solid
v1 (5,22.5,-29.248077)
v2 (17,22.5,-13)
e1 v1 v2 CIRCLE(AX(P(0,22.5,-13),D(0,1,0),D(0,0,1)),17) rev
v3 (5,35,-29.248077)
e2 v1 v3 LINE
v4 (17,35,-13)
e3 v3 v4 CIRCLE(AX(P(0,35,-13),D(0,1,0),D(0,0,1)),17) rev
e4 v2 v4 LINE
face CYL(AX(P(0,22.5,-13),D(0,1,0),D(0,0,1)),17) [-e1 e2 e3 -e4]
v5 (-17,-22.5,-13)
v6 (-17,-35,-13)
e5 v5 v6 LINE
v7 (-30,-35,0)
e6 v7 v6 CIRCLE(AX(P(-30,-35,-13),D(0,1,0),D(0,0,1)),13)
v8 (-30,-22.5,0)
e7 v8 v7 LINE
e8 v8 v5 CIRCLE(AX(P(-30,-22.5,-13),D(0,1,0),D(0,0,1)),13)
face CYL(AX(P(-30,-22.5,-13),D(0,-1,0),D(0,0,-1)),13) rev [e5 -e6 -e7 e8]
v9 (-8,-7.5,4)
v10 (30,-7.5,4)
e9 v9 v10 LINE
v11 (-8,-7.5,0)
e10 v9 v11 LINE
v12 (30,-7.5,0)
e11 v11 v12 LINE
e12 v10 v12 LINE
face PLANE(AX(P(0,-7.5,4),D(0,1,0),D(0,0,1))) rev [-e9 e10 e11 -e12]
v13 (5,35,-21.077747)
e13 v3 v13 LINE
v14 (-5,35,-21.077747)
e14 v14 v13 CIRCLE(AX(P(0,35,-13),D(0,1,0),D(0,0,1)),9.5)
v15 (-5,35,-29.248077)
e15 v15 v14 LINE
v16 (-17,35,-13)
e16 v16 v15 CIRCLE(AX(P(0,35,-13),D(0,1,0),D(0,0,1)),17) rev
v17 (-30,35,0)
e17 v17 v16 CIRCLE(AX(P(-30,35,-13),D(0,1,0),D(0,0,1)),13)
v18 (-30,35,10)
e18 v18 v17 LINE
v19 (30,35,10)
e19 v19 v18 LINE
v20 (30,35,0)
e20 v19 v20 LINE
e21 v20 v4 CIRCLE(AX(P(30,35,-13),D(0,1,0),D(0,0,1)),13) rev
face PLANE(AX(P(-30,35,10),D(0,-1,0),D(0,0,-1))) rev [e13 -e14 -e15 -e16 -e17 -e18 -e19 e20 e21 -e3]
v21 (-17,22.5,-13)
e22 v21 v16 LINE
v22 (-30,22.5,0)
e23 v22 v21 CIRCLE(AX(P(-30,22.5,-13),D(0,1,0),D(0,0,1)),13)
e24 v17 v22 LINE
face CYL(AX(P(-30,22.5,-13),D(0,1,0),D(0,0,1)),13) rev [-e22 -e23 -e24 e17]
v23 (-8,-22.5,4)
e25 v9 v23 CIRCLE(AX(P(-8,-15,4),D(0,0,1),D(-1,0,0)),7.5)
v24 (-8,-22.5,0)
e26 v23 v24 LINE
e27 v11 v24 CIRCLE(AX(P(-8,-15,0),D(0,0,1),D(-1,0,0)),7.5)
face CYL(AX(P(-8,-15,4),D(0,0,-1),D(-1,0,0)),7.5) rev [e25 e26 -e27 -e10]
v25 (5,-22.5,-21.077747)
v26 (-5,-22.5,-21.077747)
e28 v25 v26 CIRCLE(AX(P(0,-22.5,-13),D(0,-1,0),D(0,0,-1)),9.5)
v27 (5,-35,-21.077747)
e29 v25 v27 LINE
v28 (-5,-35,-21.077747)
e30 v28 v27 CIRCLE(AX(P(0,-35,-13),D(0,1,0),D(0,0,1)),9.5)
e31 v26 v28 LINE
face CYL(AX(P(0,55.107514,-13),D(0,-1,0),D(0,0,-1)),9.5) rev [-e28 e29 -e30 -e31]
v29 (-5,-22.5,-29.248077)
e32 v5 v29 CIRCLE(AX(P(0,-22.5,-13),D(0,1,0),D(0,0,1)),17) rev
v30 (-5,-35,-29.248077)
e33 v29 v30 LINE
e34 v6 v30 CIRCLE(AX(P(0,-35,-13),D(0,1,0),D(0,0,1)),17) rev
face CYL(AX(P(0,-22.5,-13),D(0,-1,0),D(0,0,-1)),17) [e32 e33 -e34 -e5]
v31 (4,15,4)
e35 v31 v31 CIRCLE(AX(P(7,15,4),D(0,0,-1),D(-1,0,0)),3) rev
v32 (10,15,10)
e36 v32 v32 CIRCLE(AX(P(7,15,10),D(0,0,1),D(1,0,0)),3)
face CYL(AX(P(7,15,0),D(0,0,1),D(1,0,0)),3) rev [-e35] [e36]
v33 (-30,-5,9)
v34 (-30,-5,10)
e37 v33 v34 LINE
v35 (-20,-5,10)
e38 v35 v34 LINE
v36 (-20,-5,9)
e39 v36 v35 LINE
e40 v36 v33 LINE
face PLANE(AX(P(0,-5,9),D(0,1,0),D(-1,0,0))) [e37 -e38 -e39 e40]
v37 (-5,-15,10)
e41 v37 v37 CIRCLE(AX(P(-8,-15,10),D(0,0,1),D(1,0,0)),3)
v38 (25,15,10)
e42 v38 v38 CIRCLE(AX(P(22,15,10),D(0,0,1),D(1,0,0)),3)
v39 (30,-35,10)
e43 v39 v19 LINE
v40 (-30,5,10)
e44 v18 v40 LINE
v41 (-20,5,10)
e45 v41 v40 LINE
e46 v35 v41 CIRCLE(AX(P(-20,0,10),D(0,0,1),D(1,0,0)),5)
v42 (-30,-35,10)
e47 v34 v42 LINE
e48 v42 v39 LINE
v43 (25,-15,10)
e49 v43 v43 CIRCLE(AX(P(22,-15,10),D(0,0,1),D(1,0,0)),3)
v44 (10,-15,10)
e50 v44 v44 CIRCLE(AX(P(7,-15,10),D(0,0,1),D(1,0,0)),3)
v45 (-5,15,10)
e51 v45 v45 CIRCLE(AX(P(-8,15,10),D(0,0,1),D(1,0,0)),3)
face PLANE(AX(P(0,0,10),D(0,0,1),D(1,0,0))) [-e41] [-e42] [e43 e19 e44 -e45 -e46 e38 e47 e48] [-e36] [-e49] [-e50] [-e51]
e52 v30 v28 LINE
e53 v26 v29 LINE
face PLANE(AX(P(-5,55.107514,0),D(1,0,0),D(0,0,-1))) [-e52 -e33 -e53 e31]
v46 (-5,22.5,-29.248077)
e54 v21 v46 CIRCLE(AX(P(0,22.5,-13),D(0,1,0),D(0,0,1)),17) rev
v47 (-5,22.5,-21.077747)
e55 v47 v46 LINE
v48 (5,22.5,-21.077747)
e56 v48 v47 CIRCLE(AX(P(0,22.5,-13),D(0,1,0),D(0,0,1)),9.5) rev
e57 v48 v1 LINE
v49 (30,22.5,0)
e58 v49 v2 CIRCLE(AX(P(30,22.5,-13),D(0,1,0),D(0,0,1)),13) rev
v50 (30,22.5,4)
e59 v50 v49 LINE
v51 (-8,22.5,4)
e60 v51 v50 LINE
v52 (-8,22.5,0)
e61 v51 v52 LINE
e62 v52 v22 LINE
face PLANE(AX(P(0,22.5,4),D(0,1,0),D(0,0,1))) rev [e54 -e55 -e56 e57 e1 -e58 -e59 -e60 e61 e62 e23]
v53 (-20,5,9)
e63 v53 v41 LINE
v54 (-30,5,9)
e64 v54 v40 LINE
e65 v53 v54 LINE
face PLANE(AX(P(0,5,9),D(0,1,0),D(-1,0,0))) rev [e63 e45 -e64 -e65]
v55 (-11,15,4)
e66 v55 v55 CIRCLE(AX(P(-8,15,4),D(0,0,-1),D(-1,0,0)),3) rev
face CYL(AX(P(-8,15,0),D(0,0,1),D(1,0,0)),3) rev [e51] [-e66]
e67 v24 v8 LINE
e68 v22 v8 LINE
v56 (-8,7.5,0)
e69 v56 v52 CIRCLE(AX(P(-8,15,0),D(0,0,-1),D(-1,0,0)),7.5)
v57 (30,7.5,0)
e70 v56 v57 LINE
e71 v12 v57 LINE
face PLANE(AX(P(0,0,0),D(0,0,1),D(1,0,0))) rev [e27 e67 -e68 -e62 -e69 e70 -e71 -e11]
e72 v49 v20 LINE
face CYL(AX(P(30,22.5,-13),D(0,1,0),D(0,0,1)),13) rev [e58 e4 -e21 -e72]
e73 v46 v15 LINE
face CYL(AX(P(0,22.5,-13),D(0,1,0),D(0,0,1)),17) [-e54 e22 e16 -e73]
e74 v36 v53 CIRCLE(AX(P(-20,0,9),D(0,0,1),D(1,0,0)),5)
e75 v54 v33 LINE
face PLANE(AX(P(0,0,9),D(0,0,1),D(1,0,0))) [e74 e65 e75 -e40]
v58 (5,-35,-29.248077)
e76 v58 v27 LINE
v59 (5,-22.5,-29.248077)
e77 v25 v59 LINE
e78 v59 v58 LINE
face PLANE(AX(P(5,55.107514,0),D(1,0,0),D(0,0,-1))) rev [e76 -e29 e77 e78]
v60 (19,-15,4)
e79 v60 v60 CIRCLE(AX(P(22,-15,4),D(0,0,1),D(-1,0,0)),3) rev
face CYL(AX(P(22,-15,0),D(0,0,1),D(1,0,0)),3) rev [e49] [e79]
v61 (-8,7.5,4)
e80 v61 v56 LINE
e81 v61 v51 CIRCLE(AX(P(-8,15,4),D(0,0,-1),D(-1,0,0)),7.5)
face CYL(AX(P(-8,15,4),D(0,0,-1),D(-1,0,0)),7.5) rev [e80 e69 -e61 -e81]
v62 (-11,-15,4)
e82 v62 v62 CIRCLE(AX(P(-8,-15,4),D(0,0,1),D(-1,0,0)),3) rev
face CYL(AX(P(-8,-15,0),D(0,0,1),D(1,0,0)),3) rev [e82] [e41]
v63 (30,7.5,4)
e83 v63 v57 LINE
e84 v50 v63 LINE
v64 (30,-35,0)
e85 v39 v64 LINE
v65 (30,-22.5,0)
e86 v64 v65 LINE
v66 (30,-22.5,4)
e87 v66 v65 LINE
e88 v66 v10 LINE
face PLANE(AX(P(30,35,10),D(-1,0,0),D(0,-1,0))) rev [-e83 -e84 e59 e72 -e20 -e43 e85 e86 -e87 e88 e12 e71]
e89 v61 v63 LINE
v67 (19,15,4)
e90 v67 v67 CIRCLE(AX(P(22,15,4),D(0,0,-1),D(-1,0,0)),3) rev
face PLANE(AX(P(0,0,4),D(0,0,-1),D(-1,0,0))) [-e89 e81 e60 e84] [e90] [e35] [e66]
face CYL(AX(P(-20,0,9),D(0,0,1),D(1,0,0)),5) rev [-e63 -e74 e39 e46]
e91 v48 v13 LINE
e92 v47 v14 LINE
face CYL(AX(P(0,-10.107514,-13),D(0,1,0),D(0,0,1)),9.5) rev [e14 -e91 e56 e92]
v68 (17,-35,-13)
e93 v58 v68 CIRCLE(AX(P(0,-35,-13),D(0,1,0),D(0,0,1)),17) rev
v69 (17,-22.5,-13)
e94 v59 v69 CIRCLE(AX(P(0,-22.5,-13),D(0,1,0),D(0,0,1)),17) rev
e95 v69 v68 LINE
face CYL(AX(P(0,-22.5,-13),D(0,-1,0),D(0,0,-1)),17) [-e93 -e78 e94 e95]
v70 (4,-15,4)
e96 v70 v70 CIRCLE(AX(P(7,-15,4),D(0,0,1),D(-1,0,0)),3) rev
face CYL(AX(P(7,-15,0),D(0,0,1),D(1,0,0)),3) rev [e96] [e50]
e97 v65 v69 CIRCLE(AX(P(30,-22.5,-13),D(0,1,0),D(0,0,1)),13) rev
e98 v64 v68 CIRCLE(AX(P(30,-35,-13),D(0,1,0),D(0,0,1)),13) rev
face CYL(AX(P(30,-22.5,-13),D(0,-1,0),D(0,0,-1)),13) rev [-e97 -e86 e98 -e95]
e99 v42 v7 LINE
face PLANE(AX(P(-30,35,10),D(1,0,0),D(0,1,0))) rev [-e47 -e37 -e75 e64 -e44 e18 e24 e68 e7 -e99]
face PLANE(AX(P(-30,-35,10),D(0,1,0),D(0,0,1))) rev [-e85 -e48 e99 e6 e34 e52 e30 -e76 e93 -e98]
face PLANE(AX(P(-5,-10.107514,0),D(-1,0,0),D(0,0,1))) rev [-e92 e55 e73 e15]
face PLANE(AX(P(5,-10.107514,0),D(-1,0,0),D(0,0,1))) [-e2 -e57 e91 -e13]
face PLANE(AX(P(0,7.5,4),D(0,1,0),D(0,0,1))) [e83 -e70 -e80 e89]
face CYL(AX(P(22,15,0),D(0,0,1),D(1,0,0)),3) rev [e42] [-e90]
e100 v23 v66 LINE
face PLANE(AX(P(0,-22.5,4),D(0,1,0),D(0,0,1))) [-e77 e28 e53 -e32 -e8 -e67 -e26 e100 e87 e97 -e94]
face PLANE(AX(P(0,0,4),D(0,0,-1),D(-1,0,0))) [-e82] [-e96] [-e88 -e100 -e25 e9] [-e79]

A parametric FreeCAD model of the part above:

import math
import FreeCAD as App
import Part
import Sketcher

V = App.Vector


def add_polygon(sketch, points):
    """Adds a closed chain of lines whose ends are joined by coincident constraints."""
    first, n = sketch.GeometryCount, len(points)
    for a, b in zip(points, points[1:] + points[:1]):
        sketch.addGeometry(Part.LineSegment(App.Vector(*a, 0), App.Vector(*b, 0)), False)
    for i in range(n):
        sketch.addConstraint(Sketcher.Constraint("Coincident", first + i, 2, first + (i + 1) % n, 1))

doc = App.newDocument("Part")
body = doc.addObject("PartDesign::Body", "Body")

sketch1 = body.newObject("Sketcher::SketchObject", "Sketch")
sketch1.AttachmentSupport = (doc.getObject("XY_Plane"), [""])
sketch1.MapMode = "FlatFace"
add_polygon(sketch1, [(-30, 35), (-30, -35), (30, -35), (30, 35)])
sketch1.addConstraint([
    Sketcher.Constraint("Vertical", 0),
    Sketcher.Constraint("Horizontal", 1),
    Sketcher.Constraint("Vertical", 2),
    Sketcher.Constraint("Horizontal", 3),
    Sketcher.Constraint("Symmetric", 0, 2, 2, 2, -1, 1),
    Sketcher.Constraint("DistanceX", 1, 1, 1, 2, 60.0),
    Sketcher.Constraint("DistanceY", 0, 2, 0, 1, 70.0),
])
pad1 = body.newObject("PartDesign::Pad", "Pad")
pad1.Profile = sketch1
pad1.Length = 10

sketch2 = body.newObject("Sketcher::SketchObject", "Sketch001")
sketch2.AttachmentSupport = (doc.getObject("XY_Plane"), [""])
sketch2.MapMode = "FlatFace"
sketch2.AttachmentOffset = App.Placement(V(0, 0, 10), App.Rotation())
sketch2.addGeometry([
    Part.Circle(V(-8, 15, 0), V(0, 0, 1), 3),
    Part.Circle(V(7, 15, 0), V(0, 0, 1), 3),
    Part.Circle(V(-8, -15, 0), V(0, 0, 1), 3),
    Part.Circle(V(7, -15, 0), V(0, 0, 1), 3),
    Part.Circle(V(22, 15, 0), V(0, 0, 1), 3),
    Part.Circle(V(22, -15, 0), V(0, 0, 1), 3),
], False)
sketch2.addConstraint([
    Sketcher.Constraint("Equal", 0, 1),
    Sketcher.Constraint("Equal", 1, 2),
    Sketcher.Constraint("Equal", 2, 3),
    Sketcher.Constraint("Equal", 3, 4),
    Sketcher.Constraint("Equal", 4, 5),
    Sketcher.Constraint("Symmetric", 0, 3, 2, 3, -1),
    Sketcher.Constraint("Symmetric", 1, 3, 3, 3, -1),
    Sketcher.Constraint("Symmetric", 4, 3, 5, 3, -1),
    Sketcher.Constraint("Horizontal", 0, 3, 1, 3),
    Sketcher.Constraint("Horizontal", 1, 3, 4, 3),
    Sketcher.Constraint("Diameter", 0, 6.0),
    Sketcher.Constraint("DistanceX", 0, 3, -1, 1, 8.0),
    Sketcher.Constraint("DistanceY", -1, 1, 0, 3, 15.0),
    Sketcher.Constraint("DistanceX", -1, 1, 1, 3, 7.0),
    Sketcher.Constraint("DistanceX", -1, 1, 4, 3, 22.0),
])
pocket1 = body.newObject("PartDesign::Pocket", "Pocket")
pocket1.Profile = sketch2
pocket1.Type = "ThroughAll"

sketch3 = body.newObject("Sketcher::SketchObject", "Sketch002")
sketch3.AttachmentSupport = (doc.getObject("XY_Plane"), [""])
sketch3.MapMode = "FlatFace"
sketch3.AttachmentOffset = App.Placement(V(0, 0, 4), App.Rotation())
sketch3.addGeometry([
    Part.LineSegment(V(-8, 22.5, 0), V(30, 22.5, 0)),
    Part.LineSegment(V(30, 22.5, 0), V(30, 7.5, 0)),
    Part.LineSegment(V(30, 7.5, 0), V(-8, 7.5, 0)),
    Part.ArcOfCircle(Part.Circle(V(-8, 15, 0), V(0, 0, 1), 7.5), math.radians(90), math.radians(270)),
    Part.Circle(V(-8, 15, 0), V(0, 0, 1), 3),
    Part.Circle(V(7, 15, 0), V(0, 0, 1), 3),
], False)
sketch3.addConstraint([
    Sketcher.Constraint("Coincident", 0, 2, 1, 1),
    Sketcher.Constraint("Coincident", 1, 2, 2, 1),
    Sketcher.Constraint("Tangent", 2, 2, 3, 2),
    Sketcher.Constraint("Tangent", 3, 1, 0, 1),
    Sketcher.Constraint("Horizontal", 0),
    Sketcher.Constraint("Vertical", 1),
    Sketcher.Constraint("Horizontal", 2),
    Sketcher.Constraint("Coincident", 4, 3, 3, 3),
    Sketcher.Constraint("Equal", 4, 5),
    Sketcher.Constraint("Horizontal", 4, 3, 5, 3),
    Sketcher.Constraint("Diameter", 4, 6.0),
    Sketcher.Constraint("Radius", 3, 7.5),
    Sketcher.Constraint("DistanceX", 0, 1, 0, 2, 38.0),
    Sketcher.Constraint("DistanceX", 3, 3, -1, 1, 8.0),
    Sketcher.Constraint("DistanceY", -1, 1, 3, 3, 15.0),
    Sketcher.Constraint("DistanceX", -1, 1, 5, 3, 7.0),
])
pocket2 = body.newObject("PartDesign::Pocket", "Pocket001")
pocket2.Profile = sketch3
pocket2.Length = 4
doc.recompute()

mirrored = body.newObject("PartDesign::Mirrored", "Mirrored")
mirrored.Originals = [pocket2]
mirrored.MirrorPlane = (doc.getObject("XZ_Plane"), [""])
body.Tip = mirrored

sketch4 = body.newObject("Sketcher::SketchObject", "Sketch003")
sketch4.AttachmentSupport = (doc.getObject("XY_Plane"), [""])
sketch4.MapMode = "FlatFace"
sketch4.AttachmentOffset = App.Placement(V(0, 0, 10), App.Rotation())
sketch4.addGeometry([
    Part.LineSegment(V(-20, 5, 0), V(-30, 5, 0)),
    Part.LineSegment(V(-30, 5, 0), V(-30, -5, 0)),
    Part.LineSegment(V(-30, -5, 0), V(-20, -5, 0)),
    Part.ArcOfCircle(Part.Circle(V(-20, 0, 0), V(0, 0, 1), 5), math.radians(-90), math.radians(90)),
], False)
sketch4.addConstraint([
    Sketcher.Constraint("Coincident", 0, 2, 1, 1),
    Sketcher.Constraint("Coincident", 1, 2, 2, 1),
    Sketcher.Constraint("Tangent", 2, 2, 3, 1),
    Sketcher.Constraint("Tangent", 3, 2, 0, 1),
    Sketcher.Constraint("Horizontal", 0),
    Sketcher.Constraint("Vertical", 1),
    Sketcher.Constraint("Horizontal", 2),
    Sketcher.Constraint("PointOnObject", 3, 3, -1),
    Sketcher.Constraint("Equal", 2, 1),
    Sketcher.Constraint("Radius", 3, 5.0),
    Sketcher.Constraint("DistanceX", 3, 3, -1, 1, 20.0),
])
pocket3 = body.newObject("PartDesign::Pocket", "Pocket002")
pocket3.Profile = sketch4
pocket3.Length = 1

sketch5 = body.newObject("Sketcher::SketchObject", "Sketch004")
sketch5.AttachmentSupport = (doc.getObject("XZ_Plane"), [""])
sketch5.MapMode = "FlatFace"
sketch5.AttachmentOffset = App.Placement(V(0, 0, -35), App.Rotation())
sketch5.addGeometry([
    Part.ArcOfCircle(Part.Circle(V(30, -13, 0), V(0, 0, 1), 13), math.radians(90), math.radians(180)),
    Part.ArcOfCircle(Part.Circle(V(0, -13, 0), V(0, 0, 1), 17), math.radians(180), math.radians(360)),
    Part.ArcOfCircle(Part.Circle(V(-30, -13, 0), V(0, 0, 1), 13), math.radians(0), math.radians(90)),
    Part.LineSegment(V(-30, 0, 0), V(30, 0, 0)),
], False)
sketch5.addConstraint([
    Sketcher.Constraint("Tangent", 0, 2, 1, 2),
    Sketcher.Constraint("Tangent", 1, 1, 2, 1),
    Sketcher.Constraint("Tangent", 2, 2, 3, 1),
    Sketcher.Constraint("Tangent", 3, 2, 0, 1),
    Sketcher.Constraint("Horizontal", 3),
    Sketcher.Constraint("Equal", 0, 2),
    Sketcher.Constraint("Symmetric", 2, 2, 3, 2, -1, 1),
    Sketcher.Constraint("Horizontal", 0, 3, 1, 3),
    Sketcher.Constraint("Radius", 0, 13.0),
    Sketcher.Constraint("Radius", 1, 17.0),
])
pad2 = body.newObject("PartDesign::Pad", "Pad001")
pad2.Profile = sketch5
pad2.Length = 12.5

sketch6 = body.newObject("Sketcher::SketchObject", "Sketch005")
sketch6.AttachmentSupport = (doc.getObject("XZ_Plane"), [""])
sketch6.MapMode = "FlatFace"
sketch6.AttachmentOffset = App.Placement(V(0, 0, -35), App.Rotation())
sketch6.addGeometry([
    Part.LineSegment(V(5, -21, 0), V(5, -29, 0)),
    Part.ArcOfCircle(Part.Circle(V(0, -13, 0), V(0, 0, 1), 17), math.radians(-90), math.radians(-72.9)),
    Part.ArcOfCircle(Part.Circle(V(0, -13, 0), V(0, 0, 1), 17), math.radians(-107.1), math.radians(-90)),
    Part.LineSegment(V(-5, -29, 0), V(-5, -21, 0)),
    Part.ArcOfCircle(Part.Circle(V(0, -13, 0), V(0, 0, 1), 10), math.radians(-58), math.radians(238)),
], False)
sketch6.addConstraint([
    Sketcher.Constraint("Coincident", 0, 2, 1, 2),
    Sketcher.Constraint("Tangent", 1, 1, 2, 2),
    Sketcher.Constraint("Coincident", 2, 1, 3, 1),
    Sketcher.Constraint("Coincident", 3, 2, 4, 2),
    Sketcher.Constraint("Coincident", 4, 1, 0, 1),
    Sketcher.Constraint("Vertical", 0),
    Sketcher.Constraint("Vertical", 3),
    Sketcher.Constraint("Coincident", 4, 3, 1, 3),
    Sketcher.Constraint("Equal", 1, 2),
    Sketcher.Constraint("Symmetric", 0, 2, 2, 1, -2),
    Sketcher.Constraint("PointOnObject", 1, 1, -2),
    Sketcher.Constraint("Radius", 1, 17.0),
    Sketcher.Constraint("Radius", 4, 9.5),
    Sketcher.Constraint("DistanceY", 1, 3, -1, 1, 13.0),
    Sketcher.Constraint("DistanceX", -1, 1, 0, 2, 5.0),
])
pocket4 = body.newObject("PartDesign::Pocket", "Pocket003")
pocket4.Profile = sketch6
pocket4.Length = 12.5
pocket4.Reversed = True
doc.recompute()

mirrored2 = body.newObject("PartDesign::Mirrored", "Mirrored001")
mirrored2.Originals = [pad2, pocket4]
mirrored2.MirrorPlane = (doc.getObject("XZ_Plane"), [""])
body.Tip = mirrored2

doc.recompute()
